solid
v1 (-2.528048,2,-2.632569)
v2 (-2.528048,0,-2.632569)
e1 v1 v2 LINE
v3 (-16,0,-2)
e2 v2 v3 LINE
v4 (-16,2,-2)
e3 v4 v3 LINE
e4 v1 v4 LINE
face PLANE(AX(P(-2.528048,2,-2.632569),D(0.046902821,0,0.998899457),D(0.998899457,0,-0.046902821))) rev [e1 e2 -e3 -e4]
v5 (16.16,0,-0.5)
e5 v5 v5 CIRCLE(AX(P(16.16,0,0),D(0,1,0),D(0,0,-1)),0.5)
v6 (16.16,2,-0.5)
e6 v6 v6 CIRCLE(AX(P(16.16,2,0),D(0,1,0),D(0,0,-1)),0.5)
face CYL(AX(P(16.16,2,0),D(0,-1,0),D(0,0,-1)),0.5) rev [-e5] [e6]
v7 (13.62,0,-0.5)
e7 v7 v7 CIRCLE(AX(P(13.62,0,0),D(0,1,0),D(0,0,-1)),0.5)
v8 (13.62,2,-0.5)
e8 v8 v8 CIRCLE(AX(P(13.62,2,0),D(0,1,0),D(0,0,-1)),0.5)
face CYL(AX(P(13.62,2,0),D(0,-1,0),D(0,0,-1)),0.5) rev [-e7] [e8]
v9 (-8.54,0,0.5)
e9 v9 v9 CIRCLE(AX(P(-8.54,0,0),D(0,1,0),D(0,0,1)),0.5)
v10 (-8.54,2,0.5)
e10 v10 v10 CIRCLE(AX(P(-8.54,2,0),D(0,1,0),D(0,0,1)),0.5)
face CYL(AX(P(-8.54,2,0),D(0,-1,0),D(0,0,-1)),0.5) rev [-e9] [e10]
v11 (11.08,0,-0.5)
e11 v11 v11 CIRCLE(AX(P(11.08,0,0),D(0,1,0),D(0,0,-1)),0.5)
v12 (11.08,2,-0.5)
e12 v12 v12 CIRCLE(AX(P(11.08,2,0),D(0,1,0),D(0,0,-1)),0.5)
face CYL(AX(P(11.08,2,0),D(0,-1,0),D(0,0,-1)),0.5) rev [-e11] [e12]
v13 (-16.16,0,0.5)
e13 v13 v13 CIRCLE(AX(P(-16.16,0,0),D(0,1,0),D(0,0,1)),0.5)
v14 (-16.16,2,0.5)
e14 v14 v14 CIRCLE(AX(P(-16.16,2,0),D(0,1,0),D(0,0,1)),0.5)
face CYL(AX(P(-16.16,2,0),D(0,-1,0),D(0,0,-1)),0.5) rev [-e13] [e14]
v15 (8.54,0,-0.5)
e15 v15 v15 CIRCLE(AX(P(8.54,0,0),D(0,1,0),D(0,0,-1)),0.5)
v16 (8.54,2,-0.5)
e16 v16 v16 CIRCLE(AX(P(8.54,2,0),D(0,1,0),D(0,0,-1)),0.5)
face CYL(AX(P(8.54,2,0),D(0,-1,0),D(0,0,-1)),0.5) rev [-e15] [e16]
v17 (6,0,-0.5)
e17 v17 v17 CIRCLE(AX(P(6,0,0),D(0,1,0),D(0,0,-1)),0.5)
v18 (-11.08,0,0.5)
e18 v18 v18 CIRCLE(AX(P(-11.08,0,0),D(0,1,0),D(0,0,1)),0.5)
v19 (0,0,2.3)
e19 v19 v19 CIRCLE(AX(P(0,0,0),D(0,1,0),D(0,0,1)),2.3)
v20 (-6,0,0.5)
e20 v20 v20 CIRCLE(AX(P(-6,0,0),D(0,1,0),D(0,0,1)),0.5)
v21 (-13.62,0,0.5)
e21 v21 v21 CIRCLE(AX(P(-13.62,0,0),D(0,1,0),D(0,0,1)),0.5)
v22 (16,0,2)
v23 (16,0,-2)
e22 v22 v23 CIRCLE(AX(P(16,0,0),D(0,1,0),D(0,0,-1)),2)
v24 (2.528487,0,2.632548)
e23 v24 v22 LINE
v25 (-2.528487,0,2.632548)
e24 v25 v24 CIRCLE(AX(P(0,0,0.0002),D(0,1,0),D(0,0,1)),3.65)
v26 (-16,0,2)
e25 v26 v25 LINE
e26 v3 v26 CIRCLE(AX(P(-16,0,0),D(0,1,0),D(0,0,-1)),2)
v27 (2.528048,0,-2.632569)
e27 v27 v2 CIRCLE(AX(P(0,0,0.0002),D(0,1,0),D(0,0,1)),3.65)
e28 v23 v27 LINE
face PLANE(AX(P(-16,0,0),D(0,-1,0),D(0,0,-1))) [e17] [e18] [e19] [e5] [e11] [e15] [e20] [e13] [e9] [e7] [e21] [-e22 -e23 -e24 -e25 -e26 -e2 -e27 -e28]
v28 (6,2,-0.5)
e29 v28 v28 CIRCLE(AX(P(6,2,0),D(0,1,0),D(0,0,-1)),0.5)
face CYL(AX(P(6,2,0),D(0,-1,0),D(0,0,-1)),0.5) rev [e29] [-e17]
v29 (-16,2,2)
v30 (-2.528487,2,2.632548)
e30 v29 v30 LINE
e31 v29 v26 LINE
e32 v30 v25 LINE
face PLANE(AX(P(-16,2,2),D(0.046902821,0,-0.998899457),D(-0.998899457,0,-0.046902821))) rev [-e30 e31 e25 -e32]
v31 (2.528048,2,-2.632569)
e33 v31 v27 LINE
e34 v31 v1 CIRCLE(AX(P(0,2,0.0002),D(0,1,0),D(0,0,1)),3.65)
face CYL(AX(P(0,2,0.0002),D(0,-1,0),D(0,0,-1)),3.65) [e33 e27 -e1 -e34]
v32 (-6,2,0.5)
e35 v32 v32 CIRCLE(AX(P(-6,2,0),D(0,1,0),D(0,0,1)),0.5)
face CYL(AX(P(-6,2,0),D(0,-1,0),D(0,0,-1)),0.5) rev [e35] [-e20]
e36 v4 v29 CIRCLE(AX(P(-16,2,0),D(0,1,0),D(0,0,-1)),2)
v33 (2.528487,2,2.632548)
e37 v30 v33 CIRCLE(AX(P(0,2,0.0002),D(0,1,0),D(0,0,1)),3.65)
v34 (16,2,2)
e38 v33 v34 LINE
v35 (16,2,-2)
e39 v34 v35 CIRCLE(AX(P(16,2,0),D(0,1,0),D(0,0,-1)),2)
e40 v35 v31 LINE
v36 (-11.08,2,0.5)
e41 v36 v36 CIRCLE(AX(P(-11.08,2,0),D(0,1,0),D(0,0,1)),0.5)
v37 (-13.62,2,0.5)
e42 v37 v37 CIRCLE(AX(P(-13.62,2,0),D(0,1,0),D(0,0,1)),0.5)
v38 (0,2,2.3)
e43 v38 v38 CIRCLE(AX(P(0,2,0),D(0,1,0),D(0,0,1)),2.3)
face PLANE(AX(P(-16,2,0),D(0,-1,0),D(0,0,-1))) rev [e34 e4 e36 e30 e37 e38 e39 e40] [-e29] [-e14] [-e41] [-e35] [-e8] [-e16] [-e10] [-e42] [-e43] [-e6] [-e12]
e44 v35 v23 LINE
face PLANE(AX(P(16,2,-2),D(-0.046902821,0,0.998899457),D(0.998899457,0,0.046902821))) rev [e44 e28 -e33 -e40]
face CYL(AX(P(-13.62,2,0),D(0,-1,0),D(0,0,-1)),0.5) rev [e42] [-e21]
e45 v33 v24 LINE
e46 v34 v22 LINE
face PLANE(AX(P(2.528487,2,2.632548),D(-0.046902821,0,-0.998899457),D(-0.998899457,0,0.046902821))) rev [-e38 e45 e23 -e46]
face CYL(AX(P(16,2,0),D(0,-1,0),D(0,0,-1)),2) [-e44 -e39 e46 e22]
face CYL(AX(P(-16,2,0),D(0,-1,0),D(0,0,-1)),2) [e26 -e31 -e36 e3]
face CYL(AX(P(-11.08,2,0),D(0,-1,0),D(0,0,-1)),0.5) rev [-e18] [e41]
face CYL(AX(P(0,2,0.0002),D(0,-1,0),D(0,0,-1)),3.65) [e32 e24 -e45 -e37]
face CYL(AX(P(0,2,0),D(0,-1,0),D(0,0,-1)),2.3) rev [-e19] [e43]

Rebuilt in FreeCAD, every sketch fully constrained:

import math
import FreeCAD as App
import Part
import Sketcher
from FreeCAD import Vector
Q = App.Units.Quantity

doc = App.newDocument("Part")
body = doc.addObject("PartDesign::Body", "Body")

sketch1 = body.newObject("Sketcher::SketchObject", "Sketch")
sketch1.AttachmentSupport = (doc.getObject("XZ_Plane"), [""])
sketch1.MapMode = "FlatFace"
sketch1.addGeometry([
    Part.LineSegment(Vector(-16, 2, 0), Vector(-2.5, 2.6, 0)),
    Part.ArcOfCircle(Part.Circle(Vector(0, 0, 0), Vector(0, 0, 1), 3.6), math.radians(46), math.radians(134)),
    Part.LineSegment(Vector(2.5, 2.6, 0), Vector(16, 2, 0)),
    Part.ArcOfCircle(Part.Circle(Vector(16, 0, 0), Vector(0, 0, 1), 2), math.radians(-90), math.radians(90)),
    Part.LineSegment(Vector(16, -2, 0), Vector(2.5, -2.6, 0)),
    Part.ArcOfCircle(Part.Circle(Vector(0, 0, 0), Vector(0, 0, 1), 3.6), math.radians(-134), math.radians(-46)),
    Part.LineSegment(Vector(-2.5, -2.6, 0), Vector(-16, -2, 0)),
    Part.ArcOfCircle(Part.Circle(Vector(-16, 0, 0), Vector(0, 0, 1), 2), math.radians(90), math.radians(270)),
    Part.Circle(Vector(-16.2, 0, 0), Vector(0, 0, 1), 0.5),
    Part.Circle(Vector(-13.6, 0, 0), Vector(0, 0, 1), 0.5),
    Part.Circle(Vector(-11.1, 0, 0), Vector(0, 0, 1), 0.5),
    Part.Circle(Vector(-8.5, 0, 0), Vector(0, 0, 1), 0.5),
    Part.Circle(Vector(-6, 0, 0), Vector(0, 0, 1), 0.5),
    Part.Circle(Vector(0, 0, 0), Vector(0, 0, 1), 2.3),
    Part.Circle(Vector(6, 0, 0), Vector(0, 0, 1), 0.5),
    Part.Circle(Vector(8.5, 0, 0), Vector(0, 0, 1), 0.5),
    Part.Circle(Vector(11.1, 0, 0), Vector(0, 0, 1), 0.5),
    Part.Circle(Vector(13.6, 0, 0), Vector(0, 0, 1), 0.5),
    Part.Circle(Vector(16.2, 0, 0), Vector(0, 0, 1), 0.5),
], False)
sketch1.addConstraint([
    Sketcher.Constraint("Coincident", 0, 2, 1, 2),
    Sketcher.Constraint("Coincident", 1, 1, 2, 1),
    Sketcher.Constraint("Coincident", 2, 2, 3, 2),
    Sketcher.Constraint("Coincident", 3, 1, 4, 1),
    Sketcher.Constraint("Coincident", 4, 2, 5, 2),
    Sketcher.Constraint("Coincident", 5, 1, 6, 1),
    Sketcher.Constraint("Coincident", 6, 2, 7, 2),
    Sketcher.Constraint("Coincident", 7, 1, 0, 1),
    Sketcher.Constraint("Coincident", 13, 3, -1, 1),
    Sketcher.Constraint("Coincident", 5, 3, 1, 3),
    Sketcher.Constraint("Equal", 1, 5),
    Sketcher.Constraint("Equal", 3, 7),
    Sketcher.Constraint("Equal", 8, 9),
    Sketcher.Constraint("Equal", 9, 10),
    Sketcher.Constraint("Equal", 10, 11),
    Sketcher.Constraint("Equal", 11, 12),
    Sketcher.Constraint("Equal", 12, 14),
    Sketcher.Constraint("Equal", 14, 15),
    Sketcher.Constraint("Equal", 15, 16),
    Sketcher.Constraint("Equal", 16, 17),
    Sketcher.Constraint("Equal", 17, 18),
    Sketcher.Constraint("Symmetric", 3, 3, 7, 3, -1, 1),
    Sketcher.Constraint("Symmetric", 12, 3, 14, 3, -1, 1),
    Sketcher.Constraint("Symmetric", 11, 3, 15, 3, -1, 1),
    Sketcher.Constraint("Symmetric", 10, 3, 16, 3, -1, 1),
    Sketcher.Constraint("Symmetric", 9, 3, 17, 3, -1, 1),
    Sketcher.Constraint("Symmetric", 8, 3, 18, 3, -1, 1),
    Sketcher.Constraint("Symmetric", 0, 2, 1, 1, -2),
    Sketcher.Constraint("Symmetric", 3, 1, 6, 2, -2),
    Sketcher.Constraint("PointOnObject", 8, 3, -1),
    Sketcher.Constraint("PointOnObject", 9, 3, -1),
    Sketcher.Constraint("PointOnObject", 10, 3, -1),
    Sketcher.Constraint("PointOnObject", 11, 3, -1),
    Sketcher.Constraint("PointOnObject", 12, 3, -1),
    Sketcher.Constraint("Parallel", 0, 4),
    Sketcher.Constraint("Parallel", 2, 6),
    Sketcher.Constraint("Horizontal", 4, 2, 5, 1),
    Sketcher.Constraint("Vertical", 3, 3, 2, 2),
    Sketcher.Constraint("Vertical", 2, 2, 3, 1),
    Sketcher.Constraint("Diameter", 8, Q("1 mm")),
    Sketcher.Constraint("Radius", 3, Q("2 mm")),
    Sketcher.Constraint("Diameter", 13, Q("4.6 mm")),
    Sketcher.Constraint("Radius", 1, Q("3.65 mm")),
    Sketcher.Constraint("DistanceX", -1, 1, 3, 3, Q("16 mm")),
    Sketcher.Constraint("DistanceX", 12, 3, -1, 1, Q("6 mm")),
    Sketcher.Constraint("DistanceX", 8, 3, -1, 1, Q("16.16 mm")),
    Sketcher.Constraint("DistanceX", 9, 3, -1, 1, Q("13.62 mm")),
    Sketcher.Constraint("DistanceX", 10, 3, -1, 1, Q("11.08 mm")),
    Sketcher.Constraint("DistanceX", 11, 3, -1, 1, Q("8.54 mm")),
    Sketcher.Constraint("DistanceY", -1, 1, 1, 3, Q("0.0002 mm")),
    Sketcher.Constraint("DistanceY", -1, 1, 0, 2, Q("2.632548 mm")),
])
pad1 = body.newObject("PartDesign::Pad", "Pad")
pad1.Profile = sketch1
pad1.Length = 2
pad1.Reversed = True

doc.recompute()
